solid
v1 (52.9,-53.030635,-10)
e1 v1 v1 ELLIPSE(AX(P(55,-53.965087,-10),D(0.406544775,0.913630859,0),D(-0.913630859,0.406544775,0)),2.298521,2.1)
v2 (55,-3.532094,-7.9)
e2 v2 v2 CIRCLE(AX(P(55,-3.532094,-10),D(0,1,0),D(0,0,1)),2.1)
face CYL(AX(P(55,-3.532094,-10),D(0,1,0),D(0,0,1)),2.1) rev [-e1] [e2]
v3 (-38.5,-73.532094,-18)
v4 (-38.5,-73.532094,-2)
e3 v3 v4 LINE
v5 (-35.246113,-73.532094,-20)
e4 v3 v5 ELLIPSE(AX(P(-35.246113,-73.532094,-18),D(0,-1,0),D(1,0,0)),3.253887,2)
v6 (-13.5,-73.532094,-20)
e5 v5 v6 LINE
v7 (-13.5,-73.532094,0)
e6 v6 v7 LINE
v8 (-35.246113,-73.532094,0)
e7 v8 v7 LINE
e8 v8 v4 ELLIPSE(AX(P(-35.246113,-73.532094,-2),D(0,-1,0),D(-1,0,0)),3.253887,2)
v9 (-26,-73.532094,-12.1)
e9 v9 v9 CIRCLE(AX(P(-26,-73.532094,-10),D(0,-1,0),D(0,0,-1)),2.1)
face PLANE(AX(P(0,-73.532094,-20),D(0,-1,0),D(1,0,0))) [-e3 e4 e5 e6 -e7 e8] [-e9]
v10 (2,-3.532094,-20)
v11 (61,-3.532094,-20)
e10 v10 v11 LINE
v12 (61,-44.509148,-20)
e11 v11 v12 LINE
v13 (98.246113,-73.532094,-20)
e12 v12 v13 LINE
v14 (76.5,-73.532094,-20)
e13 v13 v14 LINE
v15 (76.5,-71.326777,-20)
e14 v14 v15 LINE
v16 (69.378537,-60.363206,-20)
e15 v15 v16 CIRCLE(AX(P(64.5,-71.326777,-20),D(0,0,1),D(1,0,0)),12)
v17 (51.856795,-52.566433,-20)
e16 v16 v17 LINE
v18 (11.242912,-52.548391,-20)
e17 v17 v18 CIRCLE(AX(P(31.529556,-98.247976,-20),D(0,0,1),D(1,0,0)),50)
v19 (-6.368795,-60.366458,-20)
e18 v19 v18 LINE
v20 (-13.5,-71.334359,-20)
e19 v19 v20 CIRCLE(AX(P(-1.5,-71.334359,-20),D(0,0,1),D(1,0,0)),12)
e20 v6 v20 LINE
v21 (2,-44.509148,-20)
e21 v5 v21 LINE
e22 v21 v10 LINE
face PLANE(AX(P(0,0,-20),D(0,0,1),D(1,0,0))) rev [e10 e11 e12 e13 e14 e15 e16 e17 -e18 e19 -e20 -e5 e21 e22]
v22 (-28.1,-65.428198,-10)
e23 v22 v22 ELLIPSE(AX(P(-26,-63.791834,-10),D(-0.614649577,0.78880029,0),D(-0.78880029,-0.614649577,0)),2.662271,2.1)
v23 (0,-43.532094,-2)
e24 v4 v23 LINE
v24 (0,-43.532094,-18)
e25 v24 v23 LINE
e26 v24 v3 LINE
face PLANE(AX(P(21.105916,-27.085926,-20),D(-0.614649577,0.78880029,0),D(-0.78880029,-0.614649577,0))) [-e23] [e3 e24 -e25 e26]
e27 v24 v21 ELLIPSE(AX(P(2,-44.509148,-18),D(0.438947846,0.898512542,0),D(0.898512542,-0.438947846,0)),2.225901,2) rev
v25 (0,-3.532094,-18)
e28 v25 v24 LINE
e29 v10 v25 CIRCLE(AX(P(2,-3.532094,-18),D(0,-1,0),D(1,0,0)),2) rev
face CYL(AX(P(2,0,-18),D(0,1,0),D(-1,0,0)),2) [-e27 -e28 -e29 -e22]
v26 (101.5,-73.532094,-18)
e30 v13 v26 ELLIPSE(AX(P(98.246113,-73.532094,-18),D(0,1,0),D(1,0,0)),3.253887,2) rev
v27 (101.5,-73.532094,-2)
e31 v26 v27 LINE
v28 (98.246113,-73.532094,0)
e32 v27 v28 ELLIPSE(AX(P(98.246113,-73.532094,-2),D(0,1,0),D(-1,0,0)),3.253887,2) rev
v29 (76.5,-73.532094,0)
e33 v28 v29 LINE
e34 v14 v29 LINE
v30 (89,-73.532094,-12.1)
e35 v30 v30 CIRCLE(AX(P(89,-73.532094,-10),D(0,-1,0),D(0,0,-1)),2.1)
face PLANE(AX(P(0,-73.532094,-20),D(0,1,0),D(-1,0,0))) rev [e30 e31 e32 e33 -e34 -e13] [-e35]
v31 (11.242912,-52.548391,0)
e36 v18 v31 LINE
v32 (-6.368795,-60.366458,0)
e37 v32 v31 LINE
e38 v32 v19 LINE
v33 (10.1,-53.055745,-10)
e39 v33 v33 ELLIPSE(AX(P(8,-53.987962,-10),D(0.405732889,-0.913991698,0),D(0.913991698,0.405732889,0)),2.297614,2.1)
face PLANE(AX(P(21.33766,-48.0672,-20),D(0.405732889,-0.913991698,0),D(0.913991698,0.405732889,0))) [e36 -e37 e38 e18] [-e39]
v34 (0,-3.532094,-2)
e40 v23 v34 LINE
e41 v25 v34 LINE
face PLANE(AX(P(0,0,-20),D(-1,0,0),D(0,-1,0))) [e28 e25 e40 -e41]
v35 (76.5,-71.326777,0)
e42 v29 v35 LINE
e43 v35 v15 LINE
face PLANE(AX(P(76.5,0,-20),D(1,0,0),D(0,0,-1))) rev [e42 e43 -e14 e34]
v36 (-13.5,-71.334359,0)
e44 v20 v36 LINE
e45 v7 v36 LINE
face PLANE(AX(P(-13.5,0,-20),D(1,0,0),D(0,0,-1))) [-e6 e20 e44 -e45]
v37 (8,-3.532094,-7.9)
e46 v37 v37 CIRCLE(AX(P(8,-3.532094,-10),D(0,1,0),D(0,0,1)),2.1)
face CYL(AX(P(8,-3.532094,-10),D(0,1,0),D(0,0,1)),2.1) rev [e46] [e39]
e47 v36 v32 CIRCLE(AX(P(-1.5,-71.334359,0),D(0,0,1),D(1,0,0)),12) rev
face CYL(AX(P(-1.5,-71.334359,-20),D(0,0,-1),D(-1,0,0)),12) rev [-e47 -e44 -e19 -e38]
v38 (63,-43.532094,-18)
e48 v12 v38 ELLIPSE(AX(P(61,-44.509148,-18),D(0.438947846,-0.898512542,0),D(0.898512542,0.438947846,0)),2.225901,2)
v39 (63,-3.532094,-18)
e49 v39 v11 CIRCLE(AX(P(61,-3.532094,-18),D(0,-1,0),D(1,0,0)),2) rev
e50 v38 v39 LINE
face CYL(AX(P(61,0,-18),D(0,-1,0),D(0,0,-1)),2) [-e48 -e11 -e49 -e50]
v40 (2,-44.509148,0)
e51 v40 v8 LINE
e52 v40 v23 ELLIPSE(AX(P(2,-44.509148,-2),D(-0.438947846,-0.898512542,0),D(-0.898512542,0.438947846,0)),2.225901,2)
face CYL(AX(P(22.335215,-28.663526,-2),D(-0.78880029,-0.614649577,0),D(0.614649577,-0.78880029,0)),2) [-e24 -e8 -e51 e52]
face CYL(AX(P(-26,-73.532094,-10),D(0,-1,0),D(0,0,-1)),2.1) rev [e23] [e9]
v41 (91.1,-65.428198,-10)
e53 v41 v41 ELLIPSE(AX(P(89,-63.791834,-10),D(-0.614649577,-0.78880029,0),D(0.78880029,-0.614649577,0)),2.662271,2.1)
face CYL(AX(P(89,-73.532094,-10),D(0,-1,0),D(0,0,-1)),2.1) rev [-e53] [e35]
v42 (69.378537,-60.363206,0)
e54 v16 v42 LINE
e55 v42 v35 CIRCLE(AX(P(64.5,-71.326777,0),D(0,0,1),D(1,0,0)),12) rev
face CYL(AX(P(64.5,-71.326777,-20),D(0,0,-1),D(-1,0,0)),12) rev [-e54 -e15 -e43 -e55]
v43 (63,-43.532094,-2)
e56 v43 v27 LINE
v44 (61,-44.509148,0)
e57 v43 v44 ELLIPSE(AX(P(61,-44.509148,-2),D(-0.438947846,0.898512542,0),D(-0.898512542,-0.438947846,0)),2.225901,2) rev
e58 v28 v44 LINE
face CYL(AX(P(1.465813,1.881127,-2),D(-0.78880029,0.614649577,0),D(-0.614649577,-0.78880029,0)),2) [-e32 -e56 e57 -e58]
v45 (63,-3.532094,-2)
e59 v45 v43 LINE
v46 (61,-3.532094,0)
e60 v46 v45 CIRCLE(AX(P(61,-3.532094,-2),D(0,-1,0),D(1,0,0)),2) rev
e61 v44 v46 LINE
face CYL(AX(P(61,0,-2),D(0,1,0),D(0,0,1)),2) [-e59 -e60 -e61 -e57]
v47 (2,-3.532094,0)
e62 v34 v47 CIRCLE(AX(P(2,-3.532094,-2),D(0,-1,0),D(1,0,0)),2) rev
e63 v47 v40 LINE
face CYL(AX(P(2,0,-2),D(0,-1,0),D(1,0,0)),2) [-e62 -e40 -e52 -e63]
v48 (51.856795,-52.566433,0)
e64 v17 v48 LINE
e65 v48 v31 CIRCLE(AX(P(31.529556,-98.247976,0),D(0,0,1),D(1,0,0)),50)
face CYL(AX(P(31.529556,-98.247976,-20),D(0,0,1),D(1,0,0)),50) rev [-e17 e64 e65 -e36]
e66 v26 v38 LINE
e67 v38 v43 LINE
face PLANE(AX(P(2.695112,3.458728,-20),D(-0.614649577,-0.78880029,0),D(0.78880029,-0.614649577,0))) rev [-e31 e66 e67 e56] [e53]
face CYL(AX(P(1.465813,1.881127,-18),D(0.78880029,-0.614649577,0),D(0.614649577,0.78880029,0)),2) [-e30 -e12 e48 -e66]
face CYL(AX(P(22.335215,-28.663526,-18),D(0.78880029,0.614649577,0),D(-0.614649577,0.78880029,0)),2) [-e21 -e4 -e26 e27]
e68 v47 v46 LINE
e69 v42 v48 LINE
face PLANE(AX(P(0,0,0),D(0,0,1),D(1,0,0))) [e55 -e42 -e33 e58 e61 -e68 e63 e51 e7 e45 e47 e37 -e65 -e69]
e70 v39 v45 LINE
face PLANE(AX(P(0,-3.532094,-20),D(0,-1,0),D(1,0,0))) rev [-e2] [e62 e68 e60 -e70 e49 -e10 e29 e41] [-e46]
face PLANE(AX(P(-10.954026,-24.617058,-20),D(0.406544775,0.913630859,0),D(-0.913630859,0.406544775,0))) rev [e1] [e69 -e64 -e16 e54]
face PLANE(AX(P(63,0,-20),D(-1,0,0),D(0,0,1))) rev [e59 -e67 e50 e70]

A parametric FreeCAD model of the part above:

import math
import FreeCAD as App
import Part
import Sketcher

V = App.Vector
Q = App.Units.Quantity


def edges_at(feature, points):
    """Names of the edges that pass closest to the given points."""
    edges = feature.Shape.Edges
    near = lambda p: min(range(len(edges)), key=lambda i: edges[i].distToShape(Part.Vertex(*p))[0])
    return sorted({f"Edge{near(p) + 1}" for p in points})

doc = App.newDocument("Part")
params = doc.addObject("Spreadsheet::Sheet", "Params")
for row, (alias, value) in enumerate([
    ("sketch1_radius", "50 mm"),
    ("sketch1_width", "25 mm"),
    ("sketch1_width2", "63 mm"),
    ("sketch1_height", "10 mm"),
    ("sketch1_height2", "40 mm"),
    ("pad1_length", "20 mm"),
    ("sketch2_diameter", "4.2 mm"),
    ("hole_diameter", "4.2 mm"),
    ("fillet_radius", "2 mm"),
    ("sketch3_diameter", "4.2 mm"),
    ("hole2_diameter", "4.2 mm"),
    ("fillet2_radius", "12 mm"),
], start=1):
    params.set(f"A{row}", alias)
    params.set(f"B{row}", "=" + value)
    params.setAlias(f"B{row}", alias)

body = doc.addObject("PartDesign::Body", "Body")

# Sketch on XY plane
sketch1 = body.newObject("Sketcher::SketchObject", "Sketch")
sketch1.AttachmentSupport = (doc.getObject("XY_Plane"), [""])
sketch1.MapMode = "FlatFace"
sketch1.addGeometry([
    Part.LineSegment(V(0, -44, 0), V(-26, -64, 0)),  # 0
    Part.LineSegment(V(-26, -64, 0), V(-38, -74, 0)),  # 1
    Part.LineSegment(V(-38, -74, 0), V(-14, -74, 0)),  # 2
    Part.LineSegment(V(-14, -74, 0), V(-14, -64, 0)),  # 3
    Part.LineSegment(V(-14, -64, 0), V(11, -53, 0)),  # 4
    Part.ArcOfCircle(Part.Circle(V(32, -98, 0), V(0, 0, 1), 50), math.radians(66), math.radians(114)),  # 5
    Part.LineSegment(V(52, -53, 0), V(76, -64, 0)),  # 6
    Part.LineSegment(V(76, -64, 0), V(76, -74, 0)),  # 7
    Part.LineSegment(V(76, -74, 0), V(102, -74, 0)),  # 8
    Part.LineSegment(V(102, -74, 0), V(89, -64, 0)),  # 9
    Part.LineSegment(V(89, -64, 0), V(63, -44, 0)),  # 10
    Part.LineSegment(V(63, -44, 0), V(63, -4, 0)),  # 11
    Part.LineSegment(V(63, -4, 0), V(0, -4, 0)),  # 12
    Part.LineSegment(V(0, -4, 0), V(0, -44, 0)),  # 13
], False)
sketch1.addConstraint([
    Sketcher.Constraint("Coincident", 0, 2, 1, 1),
    Sketcher.Constraint("Coincident", 1, 2, 2, 1),
    Sketcher.Constraint("Coincident", 2, 2, 3, 1),
    Sketcher.Constraint("Coincident", 3, 2, 4, 1),
    Sketcher.Constraint("Tangent", 4, 2, 5, 2),
    Sketcher.Constraint("Tangent", 5, 1, 6, 1),
    Sketcher.Constraint("Coincident", 6, 2, 7, 1),
    Sketcher.Constraint("Coincident", 7, 2, 8, 1),
    Sketcher.Constraint("Coincident", 8, 2, 9, 1),
    Sketcher.Constraint("Coincident", 9, 2, 10, 1),
    Sketcher.Constraint("Coincident", 10, 2, 11, 1),
    Sketcher.Constraint("Coincident", 11, 2, 12, 1),
    Sketcher.Constraint("Coincident", 12, 2, 13, 1),
    Sketcher.Constraint("Coincident", 13, 2, 0, 1),
    Sketcher.Constraint("Horizontal", 2),
    Sketcher.Constraint("Vertical", 3),
    Sketcher.Constraint("Vertical", 7),
    Sketcher.Constraint("Horizontal", 8),
    Sketcher.Constraint("Vertical", 11),
    Sketcher.Constraint("Horizontal", 12),
    Sketcher.Constraint("Vertical", 13),
    Sketcher.Constraint("PointOnObject", 12, 2, -2),
    Sketcher.Constraint("Parallel", 0, 1),
    Sketcher.Constraint("Parallel", 9, 10),
    Sketcher.Constraint("Horizontal", 0, 2, 3, 2),
    Sketcher.Constraint("Horizontal", 3, 2, 6, 2),
    Sketcher.Constraint("Horizontal", 2, 2, 7, 2),
    Sketcher.Constraint("Horizontal", 6, 2, 9, 2),
    Sketcher.Constraint("Horizontal", 10, 2, 13, 2),
    Sketcher.Constraint("Equal", 2, 8),
    Sketcher.Constraint("Equal", 1, 9),
    Sketcher.Constraint("Radius", 5, Q("50 mm")),
    Sketcher.Constraint("DistanceX", 2, 1, 2, 2, Q("25 mm")),
    Sketcher.Constraint("DistanceX", 12, 2, 12, 1, Q("63 mm")),
    Sketcher.Constraint("DistanceY", 3, 1, 3, 2, Q("10 mm")),
    Sketcher.Constraint("DistanceY", 11, 1, 11, 2, Q("40 mm")),
    Sketcher.Constraint("DistanceX", 3, 2, 6, 2, Q("90 mm")),
    Sketcher.Constraint("DistanceY", 6, 2, 10, 2, Q("20 mm")),
    Sketcher.Constraint("DistanceY", 4, 2, -1, 1, Q("52.548391 mm")),
    Sketcher.Constraint("DistanceX", 0, 2, 4, 2, Q("36.909579 mm")),
    Sketcher.Constraint("DistanceY", 5, 1, 4, 2, Q("0.018042 mm")),
])
sketch1.setExpression("Constraints[31]", "Params.sketch1_radius")
sketch1.setExpression("Constraints[32]", "Params.sketch1_width")
sketch1.setExpression("Constraints[33]", "Params.sketch1_width2")
sketch1.setExpression("Constraints[34]", "Params.sketch1_height")
sketch1.setExpression("Constraints[35]", "Params.sketch1_height2")
pad1 = body.newObject("PartDesign::Pad", "Pad")
pad1.Profile = sketch1
pad1.setExpression("Length", "Params.pad1_length")
pad1.Reversed = True

# Sketch on XZ plane
sketch2 = body.newObject("Sketcher::SketchObject", "Sketch001")
sketch2.AttachmentSupport = (doc.getObject("XZ_Plane"), [""])
sketch2.MapMode = "FlatFace"
sketch2.AttachmentOffset = App.Placement(V(0, 0, 73.532094), App.Rotation())
sketch2.addGeometry([
    Part.Circle(V(-26, -10, 0), V(0, 0, 1), 2.1),
    Part.Circle(V(89, -10, 0), V(0, 0, 1), 2.1),
], False)
sketch2.addConstraint([
    Sketcher.Constraint("Equal", 0, 1),
    Sketcher.Constraint("Horizontal", 0, 3, 1, 3),
    Sketcher.Constraint("Diameter", 0, Q("4.2 mm")),
    Sketcher.Constraint("DistanceX", 0, 3, -1, 1, Q("26 mm")),
    Sketcher.Constraint("DistanceY", 0, 3, -1, 1, Q("10 mm")),
    Sketcher.Constraint("DistanceX", -1, 1, 1, 3, Q("89 mm")),
])
sketch2.setExpression("Constraints[2]", "Params.sketch2_diameter")
doc.recompute()
hole = body.newObject("PartDesign::Hole", "Hole")
hole.Profile = sketch2
hole.ThreadType = "None"
hole.setExpression("Diameter", "Params.hole_diameter")
hole.DepthType = "ThroughAll"
doc.recompute()

fillet = body.newObject("PartDesign::Fillet", "Fillet")
fillet.Base = (hole, edges_at(hole, [
    (63, -23.532, 0),
    (75.833, -53.532, 0),
    (-12.833, -53.532, 0),
    (0, -23.532, 0),
    (0, -23.532, -20),
    (75.833, -53.532, -20),
    (63, -23.532, -20),
    (-12.833, -53.532, -20),
]))
fillet.setExpression("Radius", "Params.fillet_radius")

# Sketch on XZ plane
sketch3 = body.newObject("Sketcher::SketchObject", "Sketch002")
sketch3.AttachmentSupport = (doc.getObject("XZ_Plane"), [""])
sketch3.MapMode = "FlatFace"
sketch3.AttachmentOffset = App.Placement(V(0, 0, 3.532094), App.Rotation())
sketch3.addGeometry([
    Part.Circle(V(8, -10, 0), V(0, 0, 1), 2.1),
    Part.Circle(V(55, -10, 0), V(0, 0, 1), 2.1),
], False)
sketch3.addConstraint([
    Sketcher.Constraint("Equal", 0, 1),
    Sketcher.Constraint("Horizontal", 0, 3, 1, 3),
    Sketcher.Constraint("Diameter", 0, Q("4.2 mm")),
    Sketcher.Constraint("DistanceX", -1, 1, 0, 3, Q("8 mm")),
    Sketcher.Constraint("DistanceY", 0, 3, -1, 1, Q("10 mm")),
    Sketcher.Constraint("DistanceX", -1, 1, 1, 3, Q("55 mm")),
])
sketch3.setExpression("Constraints[2]", "Params.sketch3_diameter")
doc.recompute()
hole2 = body.newObject("PartDesign::Hole", "Hole001")
hole2.Profile = sketch3
hole2.ThreadType = "None"
hole2.setExpression("Diameter", "Params.hole2_diameter")
hole2.DepthType = "ThroughAll"
hole2.Reversed = True
doc.recompute()

fillet2 = body.newObject("PartDesign::Fillet", "Fillet001")
fillet2.Base = (hole2, edges_at(hole2, [(76.5, -63.532, -10), (-13.5, -63.532, -10)]))
fillet2.setExpression("Radius", "Params.fillet2_radius")

doc.recompute()
